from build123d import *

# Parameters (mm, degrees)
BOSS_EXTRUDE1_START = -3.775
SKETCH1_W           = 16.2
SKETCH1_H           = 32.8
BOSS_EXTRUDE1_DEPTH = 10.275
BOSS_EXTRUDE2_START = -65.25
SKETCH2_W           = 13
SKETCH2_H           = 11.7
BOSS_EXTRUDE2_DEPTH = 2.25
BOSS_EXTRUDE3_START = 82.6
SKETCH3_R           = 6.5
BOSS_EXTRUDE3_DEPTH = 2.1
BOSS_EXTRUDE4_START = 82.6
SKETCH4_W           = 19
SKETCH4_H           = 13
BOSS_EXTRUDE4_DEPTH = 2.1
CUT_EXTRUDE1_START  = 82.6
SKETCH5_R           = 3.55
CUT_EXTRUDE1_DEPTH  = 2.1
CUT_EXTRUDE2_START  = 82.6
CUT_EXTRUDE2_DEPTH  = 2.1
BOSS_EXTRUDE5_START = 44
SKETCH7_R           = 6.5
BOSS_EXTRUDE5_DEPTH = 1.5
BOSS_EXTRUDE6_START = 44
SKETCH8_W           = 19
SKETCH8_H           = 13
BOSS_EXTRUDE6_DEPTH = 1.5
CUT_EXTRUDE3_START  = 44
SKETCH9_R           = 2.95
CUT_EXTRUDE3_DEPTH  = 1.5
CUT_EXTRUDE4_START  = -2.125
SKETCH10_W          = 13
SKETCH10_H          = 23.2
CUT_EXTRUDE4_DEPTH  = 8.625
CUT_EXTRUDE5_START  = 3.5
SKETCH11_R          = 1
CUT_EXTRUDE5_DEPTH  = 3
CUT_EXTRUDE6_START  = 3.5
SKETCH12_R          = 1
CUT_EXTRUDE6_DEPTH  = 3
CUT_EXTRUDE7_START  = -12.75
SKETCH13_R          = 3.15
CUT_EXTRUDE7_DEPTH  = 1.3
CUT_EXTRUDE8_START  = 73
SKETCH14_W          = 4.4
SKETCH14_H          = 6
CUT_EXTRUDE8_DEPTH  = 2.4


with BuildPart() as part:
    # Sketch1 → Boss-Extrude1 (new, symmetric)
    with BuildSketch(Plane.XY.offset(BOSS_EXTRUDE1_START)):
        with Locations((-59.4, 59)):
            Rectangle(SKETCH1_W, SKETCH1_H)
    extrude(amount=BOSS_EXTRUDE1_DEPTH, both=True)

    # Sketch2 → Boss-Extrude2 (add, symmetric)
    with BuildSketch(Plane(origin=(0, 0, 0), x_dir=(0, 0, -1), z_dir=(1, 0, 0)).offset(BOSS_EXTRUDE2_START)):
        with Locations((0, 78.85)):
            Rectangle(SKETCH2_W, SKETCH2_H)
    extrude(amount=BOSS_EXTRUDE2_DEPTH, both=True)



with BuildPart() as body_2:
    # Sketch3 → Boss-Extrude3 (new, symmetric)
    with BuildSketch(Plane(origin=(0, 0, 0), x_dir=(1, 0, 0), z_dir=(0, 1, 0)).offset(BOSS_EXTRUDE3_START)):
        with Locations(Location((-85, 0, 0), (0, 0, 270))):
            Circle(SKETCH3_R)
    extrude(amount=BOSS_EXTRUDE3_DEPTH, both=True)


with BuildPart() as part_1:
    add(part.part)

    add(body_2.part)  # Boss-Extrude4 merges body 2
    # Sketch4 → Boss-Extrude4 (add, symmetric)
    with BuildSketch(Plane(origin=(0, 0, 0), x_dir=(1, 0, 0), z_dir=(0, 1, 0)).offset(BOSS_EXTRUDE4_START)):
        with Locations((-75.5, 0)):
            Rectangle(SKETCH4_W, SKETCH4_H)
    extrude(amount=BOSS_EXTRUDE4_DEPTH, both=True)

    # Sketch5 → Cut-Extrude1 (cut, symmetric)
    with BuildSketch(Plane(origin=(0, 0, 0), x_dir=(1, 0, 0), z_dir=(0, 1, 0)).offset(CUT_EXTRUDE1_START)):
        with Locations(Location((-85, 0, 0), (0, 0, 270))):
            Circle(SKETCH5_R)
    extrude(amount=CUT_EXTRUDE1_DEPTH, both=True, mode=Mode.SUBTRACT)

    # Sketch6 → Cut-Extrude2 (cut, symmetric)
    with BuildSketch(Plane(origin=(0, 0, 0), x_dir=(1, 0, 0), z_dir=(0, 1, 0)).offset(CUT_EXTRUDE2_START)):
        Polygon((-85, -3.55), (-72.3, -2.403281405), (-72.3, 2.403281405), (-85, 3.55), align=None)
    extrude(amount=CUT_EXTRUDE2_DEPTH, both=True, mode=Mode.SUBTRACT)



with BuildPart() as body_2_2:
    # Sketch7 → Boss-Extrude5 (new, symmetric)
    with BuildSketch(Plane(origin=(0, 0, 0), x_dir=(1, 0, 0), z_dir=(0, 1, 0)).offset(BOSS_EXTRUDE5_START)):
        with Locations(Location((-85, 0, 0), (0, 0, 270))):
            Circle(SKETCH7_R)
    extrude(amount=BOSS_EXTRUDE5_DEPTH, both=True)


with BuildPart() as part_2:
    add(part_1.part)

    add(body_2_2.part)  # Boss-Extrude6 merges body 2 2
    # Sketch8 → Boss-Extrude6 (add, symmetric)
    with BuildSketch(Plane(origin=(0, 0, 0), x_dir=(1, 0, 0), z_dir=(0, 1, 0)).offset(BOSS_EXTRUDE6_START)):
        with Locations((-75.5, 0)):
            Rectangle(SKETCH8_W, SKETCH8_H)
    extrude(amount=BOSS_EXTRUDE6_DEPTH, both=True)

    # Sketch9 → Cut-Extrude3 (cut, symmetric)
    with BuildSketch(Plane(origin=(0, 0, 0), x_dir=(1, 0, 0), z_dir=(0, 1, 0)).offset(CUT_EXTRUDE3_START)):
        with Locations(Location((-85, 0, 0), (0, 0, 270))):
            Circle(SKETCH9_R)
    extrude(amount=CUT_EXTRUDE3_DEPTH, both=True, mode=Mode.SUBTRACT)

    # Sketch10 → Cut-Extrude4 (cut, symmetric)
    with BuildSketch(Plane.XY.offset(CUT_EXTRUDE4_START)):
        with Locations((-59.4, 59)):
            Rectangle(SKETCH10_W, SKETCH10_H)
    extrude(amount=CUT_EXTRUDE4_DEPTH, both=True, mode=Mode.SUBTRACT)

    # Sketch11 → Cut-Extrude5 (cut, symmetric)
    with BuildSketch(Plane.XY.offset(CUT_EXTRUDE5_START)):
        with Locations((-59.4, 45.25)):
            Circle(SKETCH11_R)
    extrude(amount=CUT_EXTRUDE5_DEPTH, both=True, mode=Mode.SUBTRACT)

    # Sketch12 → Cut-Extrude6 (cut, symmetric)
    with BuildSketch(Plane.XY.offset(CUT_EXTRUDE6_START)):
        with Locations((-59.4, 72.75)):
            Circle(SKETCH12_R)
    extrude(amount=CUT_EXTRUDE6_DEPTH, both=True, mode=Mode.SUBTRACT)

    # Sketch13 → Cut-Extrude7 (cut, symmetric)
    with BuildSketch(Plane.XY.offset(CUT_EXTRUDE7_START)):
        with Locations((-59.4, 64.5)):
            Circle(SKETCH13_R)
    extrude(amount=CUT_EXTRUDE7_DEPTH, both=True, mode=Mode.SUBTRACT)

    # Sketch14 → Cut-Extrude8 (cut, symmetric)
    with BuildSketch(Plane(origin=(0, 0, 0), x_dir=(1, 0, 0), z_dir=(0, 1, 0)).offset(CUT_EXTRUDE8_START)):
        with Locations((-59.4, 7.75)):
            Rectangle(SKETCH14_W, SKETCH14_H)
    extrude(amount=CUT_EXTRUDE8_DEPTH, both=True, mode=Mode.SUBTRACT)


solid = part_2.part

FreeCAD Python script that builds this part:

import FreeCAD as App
import Part
import Sketcher

V = App.Vector
Q = App.Units.Quantity

doc = App.newDocument("Part")
body = doc.addObject("PartDesign::Body", "Body")

# Sketch on XY plane
sketch1 = doc.addObject("Sketcher::SketchObject", "Sketch")
body.addObject(sketch1)
sketch1.AttachmentSupport = (doc.XY_Plane, [""])
sketch1.MapMode = "FlatFace"
sketch1.AttachmentOffset = App.Placement(V(0, 0, -3.775), App.Rotation())
sketch1.addGeometry([
    Part.LineSegment(V(-68, 75, 0), V(-68, 43, 0)),
    Part.LineSegment(V(-68, 43, 0), V(-51, 43, 0)),
    Part.LineSegment(V(-51, 43, 0), V(-51, 75, 0)),
    Part.LineSegment(V(-51, 75, 0), V(-68, 75, 0)),
], False)
sketch1.addConstraint([
    Sketcher.Constraint("Coincident", 0, 2, 1, 1),
    Sketcher.Constraint("Coincident", 1, 2, 2, 1),
    Sketcher.Constraint("Coincident", 2, 2, 3, 1),
    Sketcher.Constraint("Coincident", 3, 2, 0, 1),
    Sketcher.Constraint("Vertical", 0),
    Sketcher.Constraint("Horizontal", 1),
    Sketcher.Constraint("Vertical", 2),
    Sketcher.Constraint("Horizontal", 3),
    Sketcher.Constraint("DistanceX", 1, 1, 1, 2, Q("16.2 mm")),
    Sketcher.Constraint("DistanceY", 0, 2, 0, 1, Q("32.8 mm")),
    Sketcher.Constraint("DistanceX", 0, 2, -1, 1, Q("67.5 mm")),
    Sketcher.Constraint("DistanceY", -1, 1, 0, 2, Q("42.6 mm")),
])
pad1 = doc.addObject("PartDesign::Pad", "Pad")
body.addObject(pad1)
pad1.Profile = sketch1
pad1.Length = 20.55
pad1.Midplane = True

# Sketch on YZ plane
sketch2 = doc.addObject("Sketcher::SketchObject", "Sketch001")
body.addObject(sketch2)
sketch2.AttachmentSupport = (doc.YZ_Plane, [""])
sketch2.MapMode = "FlatFace"
sketch2.AttachmentOffset = App.Placement(V(0, 0, -65.25), App.Rotation())
sketch2.addGeometry([
    Part.LineSegment(V(85, 6, 0), V(73, 6, 0)),
    Part.LineSegment(V(73, 6, 0), V(73, -6, 0)),
    Part.LineSegment(V(73, -6, 0), V(85, -6, 0)),
    Part.LineSegment(V(85, -6, 0), V(85, 6, 0)),
], False)
sketch2.addConstraint([
    Sketcher.Constraint("Coincident", 0, 2, 1, 1),
    Sketcher.Constraint("Coincident", 1, 2, 2, 1),
    Sketcher.Constraint("Coincident", 2, 2, 3, 1),
    Sketcher.Constraint("Coincident", 3, 2, 0, 1),
    Sketcher.Constraint("Horizontal", 0),
    Sketcher.Constraint("Vertical", 1),
    Sketcher.Constraint("Horizontal", 2),
    Sketcher.Constraint("Vertical", 3),
    Sketcher.Constraint("DistanceY", 1, 2, 1, 1, Q("13 mm")),
    Sketcher.Constraint("DistanceX", 0, 2, 0, 1, Q("11.7 mm")),
    Sketcher.Constraint("DistanceX", -1, 1, 0, 2, Q("73 mm")),
    Sketcher.Constraint("DistanceY", -1, 1, 0, 2, Q("6.5 mm")),
])
pad2 = doc.addObject("PartDesign::Pad", "Pad001")
body.addObject(pad2)
pad2.Profile = sketch2
pad2.Length = 4.5
pad2.Midplane = True
body2 = doc.addObject("PartDesign::Body", "Body001")

# Sketch on XZ plane
sketch3 = doc.addObject("Sketcher::SketchObject", "Sketch002")
body2.addObject(sketch3)
sketch3.AttachmentSupport = (doc.getObject("XZ_Plane001"), [""])
sketch3.MapMode = "FlatFace"
sketch3.AttachmentOffset = App.Placement(V(0, 0, -82.6), App.Rotation())
sketch3.addGeometry(Part.Circle(V(-85, 0, 0), V(0, 0, 1), 6), False)
sketch3.addConstraint([
    Sketcher.Constraint("PointOnObject", 0, 3, -1),
    Sketcher.Constraint("Diameter", 0, Q("13 mm")),
    Sketcher.Constraint("DistanceX", 0, 3, -1, 1, Q("85 mm")),
])
pad3 = doc.addObject("PartDesign::Pad", "Pad002")
body2.addObject(pad3)
pad3.Profile = sketch3
pad3.Length = 4.2
pad3.Midplane = True
body.AllowCompound = True
doc.recompute()

boolean = doc.addObject("PartDesign::Boolean", "Boolean")
body.addObject(boolean)
boolean.Type = "Fuse"
boolean.addObjects([body2])

# Sketch on XZ plane
sketch4 = doc.addObject("Sketcher::SketchObject", "Sketch003")
body.addObject(sketch4)
sketch4.AttachmentSupport = (doc.XZ_Plane, [""])
sketch4.MapMode = "FlatFace"
sketch4.AttachmentOffset = App.Placement(V(0, 0, -82.6), App.Rotation())
sketch4.addGeometry([
    Part.LineSegment(V(-85, -6, 0), V(-85, 6, 0)),
    Part.LineSegment(V(-85, 6, 0), V(-66, 6, 0)),
    Part.LineSegment(V(-66, 6, 0), V(-66, -6, 0)),
    Part.LineSegment(V(-66, -6, 0), V(-85, -6, 0)),
], False)
sketch4.addConstraint([
    Sketcher.Constraint("Coincident", 0, 2, 1, 1),
    Sketcher.Constraint("Coincident", 1, 2, 2, 1),
    Sketcher.Constraint("Coincident", 2, 2, 3, 1),
    Sketcher.Constraint("Coincident", 3, 2, 0, 1),
    Sketcher.Constraint("Vertical", 0),
    Sketcher.Constraint("Horizontal", 1),
    Sketcher.Constraint("Vertical", 2),
    Sketcher.Constraint("Horizontal", 3),
    Sketcher.Constraint("DistanceX", 1, 1, 1, 2, Q("19 mm")),
    Sketcher.Constraint("DistanceY", 0, 1, 0, 2, Q("13 mm")),
    Sketcher.Constraint("DistanceX", 0, 2, -1, 1, Q("85 mm")),
    Sketcher.Constraint("DistanceY", -1, 1, 0, 2, Q("6.5 mm")),
])
pad4 = doc.addObject("PartDesign::Pad", "Pad003")
body.addObject(pad4)
pad4.Profile = sketch4
pad4.Length = 4.2
pad4.Midplane = True

# Sketch on XZ plane
sketch5 = doc.addObject("Sketcher::SketchObject", "Sketch004")
body.addObject(sketch5)
sketch5.AttachmentSupport = (doc.XZ_Plane, [""])
sketch5.MapMode = "FlatFace"
sketch5.AttachmentOffset = App.Placement(V(0, 0, -82.6), App.Rotation())
sketch5.addGeometry(Part.Circle(V(-85, 0, 0), V(0, 0, 1), 3.5), False)
sketch5.addConstraint([
    Sketcher.Constraint("PointOnObject", 0, 3, -1),
    Sketcher.Constraint("Diameter", 0, Q("7.1 mm")),
    Sketcher.Constraint("DistanceX", 0, 3, -1, 1, Q("85 mm")),
])
pocket1 = doc.addObject("PartDesign::Pocket", "Pocket")
body.addObject(pocket1)
pocket1.Profile = sketch5
pocket1.Length = 4.2
pocket1.Midplane = True

# Sketch on XZ plane
sketch6 = doc.addObject("Sketcher::SketchObject", "Sketch005")
body.addObject(sketch6)
sketch6.AttachmentSupport = (doc.XZ_Plane, [""])
sketch6.MapMode = "FlatFace"
sketch6.AttachmentOffset = App.Placement(V(0, 0, -82.6), App.Rotation())
sketch6.addGeometry([
    Part.LineSegment(V(-85, 3.5, 0), V(-72.3, 2.4, 0)),
    Part.LineSegment(V(-72.3, 2.4, 0), V(-72.3, -2.4, 0)),
    Part.LineSegment(V(-72.3, -2.4, 0), V(-85, -3.5, 0)),
    Part.LineSegment(V(-85, -3.5, 0), V(-85, 3.5, 0)),
], False)
sketch6.addConstraint([
    Sketcher.Constraint("Coincident", 0, 2, 1, 1),
    Sketcher.Constraint("Coincident", 1, 2, 2, 1),
    Sketcher.Constraint("Coincident", 2, 2, 3, 1),
    Sketcher.Constraint("Coincident", 3, 2, 0, 1),
    Sketcher.Constraint("Vertical", 1),
    Sketcher.Constraint("Vertical", 3),
    Sketcher.Constraint("Equal", 0, 2),
    Sketcher.Constraint("DistanceY", 3, 1, 3, 2, Q("7.1 mm")),
    Sketcher.Constraint("DistanceX", 2, 2, -1, 1, Q("85 mm")),
    Sketcher.Constraint("DistanceX", 0, 2, -1, 1, Q("72.3 mm")),
    Sketcher.Constraint("DistanceY", 2, 2, -1, 1, Q("3.55 mm")),
    Sketcher.Constraint("DistanceY", 1, 2, 1, 1, Q("4.806563 mm")),
])
pocket2 = doc.addObject("PartDesign::Pocket", "Pocket001")
body.addObject(pocket2)
pocket2.Profile = sketch6
pocket2.Length = 4.2
pocket2.Midplane = True
body3 = doc.addObject("PartDesign::Body", "Body002")

# Sketch on XZ plane
sketch7 = doc.addObject("Sketcher::SketchObject", "Sketch006")
body3.addObject(sketch7)
sketch7.AttachmentSupport = (doc.getObject("XZ_Plane002"), [""])
sketch7.MapMode = "FlatFace"
sketch7.AttachmentOffset = App.Placement(V(0, 0, -44), App.Rotation())
sketch7.addGeometry(Part.Circle(V(-85, 0, 0), V(0, 0, 1), 6), False)
sketch7.addConstraint([
    Sketcher.Constraint("PointOnObject", 0, 3, -1),
    Sketcher.Constraint("Diameter", 0, Q("13 mm")),
    Sketcher.Constraint("DistanceX", 0, 3, -1, 1, Q("85 mm")),
])
pad5 = doc.addObject("PartDesign::Pad", "Pad004")
body3.addObject(pad5)
pad5.Profile = sketch7
pad5.Length = 3
pad5.Midplane = True
body.AllowCompound = True
doc.recompute()

boolean2 = doc.addObject("PartDesign::Boolean", "Boolean001")
body.addObject(boolean2)
boolean2.Type = "Fuse"
boolean2.addObjects([body3])

# Sketch on XZ plane
sketch8 = doc.addObject("Sketcher::SketchObject", "Sketch007")
body.addObject(sketch8)
sketch8.AttachmentSupport = (doc.XZ_Plane, [""])
sketch8.MapMode = "FlatFace"
sketch8.AttachmentOffset = App.Placement(V(0, 0, -44), App.Rotation())
sketch8.addGeometry([
    Part.LineSegment(V(-85, -6, 0), V(-85, 6, 0)),
    Part.LineSegment(V(-85, 6, 0), V(-66, 6, 0)),
    Part.LineSegment(V(-66, 6, 0), V(-66, -6, 0)),
    Part.LineSegment(V(-66, -6, 0), V(-85, -6, 0)),
], False)
sketch8.addConstraint([
    Sketcher.Constraint("Coincident", 0, 2, 1, 1),
    Sketcher.Constraint("Coincident", 1, 2, 2, 1),
    Sketcher.Constraint("Coincident", 2, 2, 3, 1),
    Sketcher.Constraint("Coincident", 3, 2, 0, 1),
    Sketcher.Constraint("Vertical", 0),
    Sketcher.Constraint("Horizontal", 1),
    Sketcher.Constraint("Vertical", 2),
    Sketcher.Constraint("Horizontal", 3),
    Sketcher.Constraint("DistanceX", 1, 1, 1, 2, Q("19 mm")),
    Sketcher.Constraint("DistanceY", 0, 1, 0, 2, Q("13 mm")),
    Sketcher.Constraint("DistanceX", 0, 2, -1, 1, Q("85 mm")),
    Sketcher.Constraint("DistanceY", -1, 1, 0, 2, Q("6.5 mm")),
])
pad6 = doc.addObject("PartDesign::Pad", "Pad005")
body.addObject(pad6)
pad6.Profile = sketch8
pad6.Length = 3
pad6.Midplane = True

# Sketch on XZ plane
sketch9 = doc.addObject("Sketcher::SketchObject", "Sketch008")
body.addObject(sketch9)
sketch9.AttachmentSupport = (doc.XZ_Plane, [""])
sketch9.MapMode = "FlatFace"
sketch9.AttachmentOffset = App.Placement(V(0, 0, -44), App.Rotation())
sketch9.addGeometry(Part.Circle(V(-85, 0, 0), V(0, 0, 1), 3), False)
sketch9.addConstraint([
    Sketcher.Constraint("PointOnObject", 0, 3, -1),
    Sketcher.Constraint("Diameter", 0, Q("5.9 mm")),
    Sketcher.Constraint("DistanceX", 0, 3, -1, 1, Q("85 mm")),
])
pocket3 = doc.addObject("PartDesign::Pocket", "Pocket002")
body.addObject(pocket3)
pocket3.Profile = sketch9
pocket3.Length = 3
pocket3.Midplane = True

# Sketch on XY plane
sketch10 = doc.addObject("Sketcher::SketchObject", "Sketch009")
body.addObject(sketch10)
sketch10.AttachmentSupport = (doc.XY_Plane, [""])
sketch10.MapMode = "FlatFace"
sketch10.AttachmentOffset = App.Placement(V(0, 0, -2.125), App.Rotation())
sketch10.addGeometry([
    Part.LineSegment(V(-66, 71, 0), V(-66, 47, 0)),
    Part.LineSegment(V(-66, 47, 0), V(-53, 47, 0)),
    Part.LineSegment(V(-53, 47, 0), V(-53, 71, 0)),
    Part.LineSegment(V(-53, 71, 0), V(-66, 71, 0)),
], False)
sketch10.addConstraint([
    Sketcher.Constraint("Coincident", 0, 2, 1, 1),
    Sketcher.Constraint("Coincident", 1, 2, 2, 1),
    Sketcher.Constraint("Coincident", 2, 2, 3, 1),
    Sketcher.Constraint("Coincident", 3, 2, 0, 1),
    Sketcher.Constraint("Vertical", 0),
    Sketcher.Constraint("Horizontal", 1),
    Sketcher.Constraint("Vertical", 2),
    Sketcher.Constraint("Horizontal", 3),
    Sketcher.Constraint("DistanceX", 1, 1, 1, 2, Q("13 mm")),
    Sketcher.Constraint("DistanceY", 0, 2, 0, 1, Q("23.2 mm")),
    Sketcher.Constraint("DistanceX", 0, 2, -1, 1, Q("65.9 mm")),
    Sketcher.Constraint("DistanceY", -1, 1, 0, 2, Q("47.4 mm")),
])
pocket4 = doc.addObject("PartDesign::Pocket", "Pocket003")
body.addObject(pocket4)
pocket4.Profile = sketch10
pocket4.Length = 17.25
pocket4.Midplane = True

# Sketch on XY plane
sketch11 = doc.addObject("Sketcher::SketchObject", "Sketch010")
body.addObject(sketch11)
sketch11.AttachmentSupport = (doc.XY_Plane, [""])
sketch11.MapMode = "FlatFace"
sketch11.AttachmentOffset = App.Placement(V(0, 0, 3.5), App.Rotation())
sketch11.addGeometry(Part.Circle(V(-59.4, 45.2, 0), V(0, 0, 1), 1), False)
sketch11.addConstraint([
    Sketcher.Constraint("Diameter", 0, Q("2 mm")),
    Sketcher.Constraint("DistanceX", 0, 3, -1, 1, Q("59.4 mm")),
    Sketcher.Constraint("DistanceY", -1, 1, 0, 3, Q("45.25 mm")),
])
pocket5 = doc.addObject("PartDesign::Pocket", "Pocket004")
body.addObject(pocket5)
pocket5.Profile = sketch11
pocket5.Length = 6
pocket5.Midplane = True

# Sketch on XY plane
sketch12 = doc.addObject("Sketcher::SketchObject", "Sketch011")
body.addObject(sketch12)
sketch12.AttachmentSupport = (doc.XY_Plane, [""])
sketch12.MapMode = "FlatFace"
sketch12.AttachmentOffset = App.Placement(V(0, 0, 3.5), App.Rotation())
sketch12.addGeometry(Part.Circle(V(-59.4, 72.8, 0), V(0, 0, 1), 1), False)
sketch12.addConstraint([
    Sketcher.Constraint("Diameter", 0, Q("2 mm")),
    Sketcher.Constraint("DistanceX", 0, 3, -1, 1, Q("59.4 mm")),
    Sketcher.Constraint("DistanceY", -1, 1, 0, 3, Q("72.75 mm")),
])
pocket6 = doc.addObject("PartDesign::Pocket", "Pocket005")
body.addObject(pocket6)
pocket6.Profile = sketch12
pocket6.Length = 6
pocket6.Midplane = True

# Sketch on XY plane
sketch13 = doc.addObject("Sketcher::SketchObject", "Sketch012")
body.addObject(sketch13)
sketch13.AttachmentSupport = (doc.XY_Plane, [""])
sketch13.MapMode = "FlatFace"
sketch13.AttachmentOffset = App.Placement(V(0, 0, -12.75), App.Rotation())
sketch13.addGeometry(Part.Circle(V(-59.4, 64.5, 0), V(0, 0, 1), 3.1), False)
sketch13.addConstraint([
    Sketcher.Constraint("Diameter", 0, Q("6.3 mm")),
    Sketcher.Constraint("DistanceX", 0, 3, -1, 1, Q("59.4 mm")),
    Sketcher.Constraint("DistanceY", -1, 1, 0, 3, Q("64.5 mm")),
])
pocket7 = doc.addObject("PartDesign::Pocket", "Pocket006")
body.addObject(pocket7)
pocket7.Profile = sketch13
pocket7.Length = 2.6
pocket7.Midplane = True

# Sketch on XZ plane
sketch14 = doc.addObject("Sketcher::SketchObject", "Sketch013")
body.addObject(sketch14)
sketch14.AttachmentSupport = (doc.XZ_Plane, [""])
sketch14.MapMode = "FlatFace"
sketch14.AttachmentOffset = App.Placement(V(0, 0, -73), App.Rotation())
sketch14.addGeometry([
    Part.LineSegment(V(-61.6, -10.8, 0), V(-61.6, -4.8, 0)),
    Part.LineSegment(V(-61.6, -4.8, 0), V(-57.2, -4.8, 0)),
    Part.LineSegment(V(-57.2, -4.8, 0), V(-57.2, -10.8, 0)),
    Part.LineSegment(V(-57.2, -10.8, 0), V(-61.6, -10.8, 0)),
], False)
sketch14.addConstraint([
    Sketcher.Constraint("Coincident", 0, 2, 1, 1),
    Sketcher.Constraint("Coincident", 1, 2, 2, 1),
    Sketcher.Constraint("Coincident", 2, 2, 3, 1),
    Sketcher.Constraint("Coincident", 3, 2, 0, 1),
    Sketcher.Constraint("Vertical", 0),
    Sketcher.Constraint("Horizontal", 1),
    Sketcher.Constraint("Vertical", 2),
    Sketcher.Constraint("Horizontal", 3),
    Sketcher.Constraint("DistanceY", 0, 1, 0, 2, Q("6 mm")),
    Sketcher.Constraint("DistanceX", 1, 1, 1, 2, Q("4.4 mm")),
    Sketcher.Constraint("DistanceX", 0, 2, -1, 1, Q("61.6 mm")),
    Sketcher.Constraint("DistanceY", 0, 2, -1, 1, Q("4.75 mm")),
])
pocket8 = doc.addObject("PartDesign::Pocket", "Pocket007")
body.addObject(pocket8)
pocket8.Profile = sketch14
pocket8.Length = 4.8
pocket8.Midplane = True

doc.recompute()
